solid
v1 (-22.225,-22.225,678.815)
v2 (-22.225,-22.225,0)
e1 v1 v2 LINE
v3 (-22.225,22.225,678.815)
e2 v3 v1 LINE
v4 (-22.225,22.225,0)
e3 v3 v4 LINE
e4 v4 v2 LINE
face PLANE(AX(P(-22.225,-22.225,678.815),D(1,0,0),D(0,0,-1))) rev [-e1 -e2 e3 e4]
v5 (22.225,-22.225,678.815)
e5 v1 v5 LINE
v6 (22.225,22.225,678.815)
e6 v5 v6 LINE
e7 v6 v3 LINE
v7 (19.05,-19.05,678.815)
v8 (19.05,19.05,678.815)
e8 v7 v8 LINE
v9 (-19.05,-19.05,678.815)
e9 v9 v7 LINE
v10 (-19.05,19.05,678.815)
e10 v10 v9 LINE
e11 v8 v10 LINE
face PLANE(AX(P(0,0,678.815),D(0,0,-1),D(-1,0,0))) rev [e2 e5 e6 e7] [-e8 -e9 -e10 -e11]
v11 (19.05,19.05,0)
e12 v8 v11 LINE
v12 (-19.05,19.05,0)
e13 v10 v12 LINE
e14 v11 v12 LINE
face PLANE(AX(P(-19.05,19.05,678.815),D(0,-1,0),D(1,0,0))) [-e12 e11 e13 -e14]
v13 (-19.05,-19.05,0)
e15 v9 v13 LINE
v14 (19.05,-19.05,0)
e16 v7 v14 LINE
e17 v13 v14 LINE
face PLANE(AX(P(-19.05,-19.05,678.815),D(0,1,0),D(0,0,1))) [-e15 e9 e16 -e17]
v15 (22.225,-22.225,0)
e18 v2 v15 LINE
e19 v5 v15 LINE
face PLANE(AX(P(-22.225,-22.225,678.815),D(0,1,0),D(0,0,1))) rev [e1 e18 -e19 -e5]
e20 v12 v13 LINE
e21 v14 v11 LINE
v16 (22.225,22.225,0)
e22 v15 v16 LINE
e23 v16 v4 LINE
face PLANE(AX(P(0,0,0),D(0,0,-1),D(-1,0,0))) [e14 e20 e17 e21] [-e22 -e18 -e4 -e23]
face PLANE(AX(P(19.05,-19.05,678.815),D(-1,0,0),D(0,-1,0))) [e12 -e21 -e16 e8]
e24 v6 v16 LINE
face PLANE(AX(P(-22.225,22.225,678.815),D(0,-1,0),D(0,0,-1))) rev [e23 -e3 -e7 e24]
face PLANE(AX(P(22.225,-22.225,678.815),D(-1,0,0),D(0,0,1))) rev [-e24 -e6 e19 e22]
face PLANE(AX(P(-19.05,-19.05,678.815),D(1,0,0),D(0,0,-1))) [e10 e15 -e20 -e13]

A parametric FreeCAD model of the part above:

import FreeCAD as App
import Part
import Sketcher
from FreeCAD import Vector
Q = App.Units.Quantity


def add_polygon(sketch, points):
    """Adds a closed chain of lines whose ends are joined by coincident constraints."""
    first, n = sketch.GeometryCount, len(points)
    for a, b in zip(points, points[1:] + points[:1]):
        sketch.addGeometry(Part.LineSegment(App.Vector(*a, 0), App.Vector(*b, 0)), False)
    for i in range(n):
        sketch.addConstraint(Sketcher.Constraint("Coincident", first + i, 2, first + (i + 1) % n, 1))

doc = App.newDocument("Part")
body = doc.addObject("PartDesign::Body", "Body")

# Sketch on XY plane
sketch1 = body.newObject("Sketcher::SketchObject", "Sketch")
sketch1.AttachmentSupport = (doc.getObject("XY_Plane"), [""])
sketch1.MapMode = "FlatFace"
add_polygon(sketch1, [(-22.225, 22.225), (-22.225, -22.225), (22.225, -22.225), (22.225, 22.225)])  # lines 0-3
add_polygon(sketch1, [(19.05, -19.05), (-19.05, -19.05), (-19.05, 19.05), (19.05, 19.05)])  # lines 4-7
sketch1.addConstraint(Sketcher.Constraint("Vertical", 0))
sketch1.addConstraint(Sketcher.Constraint("Horizontal", 1))
sketch1.addConstraint(Sketcher.Constraint("Vertical", 2))
sketch1.addConstraint(Sketcher.Constraint("Horizontal", 3))
sketch1.addConstraint(Sketcher.Constraint("Horizontal", 4))
sketch1.addConstraint(Sketcher.Constraint("Vertical", 5))
sketch1.addConstraint(Sketcher.Constraint("Horizontal", 6))
sketch1.addConstraint(Sketcher.Constraint("Vertical", 7))
sketch1.addConstraint(Sketcher.Constraint("Symmetric", 0, 2, 2, 2, -1, 1))
sketch1.addConstraint(Sketcher.Constraint("Symmetric", 4, 2, 6, 2, -1, 1))
sketch1.addConstraint(Sketcher.Constraint("Equal", 3, 0))
sketch1.addConstraint(Sketcher.Constraint("Equal", 6, 5))
sketch1.addConstraint(Sketcher.Constraint("DistanceX", 4, 2, 4, 1, Q("1.5 in")))
sketch1.addConstraint(Sketcher.Constraint("DistanceX", 1, 1, 1, 2, Q("1.75 in")))
pad1 = body.newObject("PartDesign::Pad", "Pad")
pad1.Profile = sketch1
pad1.Length = Q("26.725 in")

doc.recompute()
